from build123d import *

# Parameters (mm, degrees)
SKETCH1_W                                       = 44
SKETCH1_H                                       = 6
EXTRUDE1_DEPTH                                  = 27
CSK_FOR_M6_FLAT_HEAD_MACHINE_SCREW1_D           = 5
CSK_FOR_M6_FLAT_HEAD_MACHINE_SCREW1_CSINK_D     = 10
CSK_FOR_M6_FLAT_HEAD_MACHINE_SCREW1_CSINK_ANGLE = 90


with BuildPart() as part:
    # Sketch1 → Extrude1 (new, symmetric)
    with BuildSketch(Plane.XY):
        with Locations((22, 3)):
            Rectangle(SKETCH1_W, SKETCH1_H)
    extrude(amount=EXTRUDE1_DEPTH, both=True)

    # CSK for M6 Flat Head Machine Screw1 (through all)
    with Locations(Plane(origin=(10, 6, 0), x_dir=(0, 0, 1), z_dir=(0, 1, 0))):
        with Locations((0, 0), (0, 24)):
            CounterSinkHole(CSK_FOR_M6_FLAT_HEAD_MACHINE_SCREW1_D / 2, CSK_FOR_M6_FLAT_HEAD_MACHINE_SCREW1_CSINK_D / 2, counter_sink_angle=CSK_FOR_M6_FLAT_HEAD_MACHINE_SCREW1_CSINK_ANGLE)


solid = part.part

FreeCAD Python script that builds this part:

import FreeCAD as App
import Part
import Sketcher
from FreeCAD import Vector

doc = App.newDocument("Part")
body = doc.addObject("PartDesign::Body", "Body")

# Sketch on XY plane
sketch1 = body.newObject("Sketcher::SketchObject", "Sketch")
sketch1.AttachmentSupport = (doc.getObject("XY_Plane"), [""])
sketch1.MapMode = "FlatFace"
sketch1.addGeometry([
    Part.LineSegment(Vector(0, 6, 0), Vector(0, 0, 0)),
    Part.LineSegment(Vector(0, 0, 0), Vector(44, 0, 0)),
    Part.LineSegment(Vector(44, 0, 0), Vector(44, 6, 0)),
    Part.LineSegment(Vector(44, 6, 0), Vector(0, 6, 0)),
], False)
sketch1.addConstraint([
    Sketcher.Constraint("Coincident", 0, 2, 1, 1),
    Sketcher.Constraint("Coincident", 1, 2, 2, 1),
    Sketcher.Constraint("Coincident", 2, 2, 3, 1),
    Sketcher.Constraint("Coincident", 3, 2, 0, 1),
    Sketcher.Constraint("Vertical", 0),
    Sketcher.Constraint("Horizontal", 1),
    Sketcher.Constraint("Vertical", 2),
    Sketcher.Constraint("Horizontal", 3),
    Sketcher.Constraint("Coincident", 0, 2, -1, 1),
    Sketcher.Constraint("DistanceX", 1, 1, 1, 2, 44.0),
    Sketcher.Constraint("DistanceY", 0, 2, 0, 1, 6.0),
])
pad1 = body.newObject("PartDesign::Pad", "Pad")
pad1.Profile = sketch1
pad1.Length = 54
pad1.Midplane = True

# Sketch on XZ plane
sketch2 = body.newObject("Sketcher::SketchObject", "Sketch001")
sketch2.AttachmentSupport = (doc.getObject("XZ_Plane"), [""])
sketch2.MapMode = "FlatFace"
sketch2.AttachmentOffset = App.Placement(Vector(0, 0, -6), App.Rotation())
sketch2.addGeometry([
    Part.Circle(Vector(10, 0, 0), Vector(0, 0, 1), 2.5),
    Part.Circle(Vector(34, 0, 0), Vector(0, 0, 1), 2.5),
], False)
sketch2.addConstraint([
    Sketcher.Constraint("Equal", 0, 1),
    Sketcher.Constraint("PointOnObject", 0, 3, -1),
    Sketcher.Constraint("PointOnObject", 1, 3, -1),
    Sketcher.Constraint("Diameter", 0, 5.0),
    Sketcher.Constraint("DistanceX", -1, 1, 0, 3, 10.0),
    Sketcher.Constraint("DistanceX", -1, 1, 1, 3, 34.0),
])
doc.recompute()
hole = body.newObject("PartDesign::Hole", "Hole")
hole.Profile = sketch2
hole.ThreadType = "None"
hole.Diameter = 5
hole.DepthType = "ThroughAll"
hole.HoleCutType = "Countersink"
hole.HoleCutDiameter = 10
hole.HoleCutCountersinkAngle = 90
hole.Reversed = True

doc.recompute()
